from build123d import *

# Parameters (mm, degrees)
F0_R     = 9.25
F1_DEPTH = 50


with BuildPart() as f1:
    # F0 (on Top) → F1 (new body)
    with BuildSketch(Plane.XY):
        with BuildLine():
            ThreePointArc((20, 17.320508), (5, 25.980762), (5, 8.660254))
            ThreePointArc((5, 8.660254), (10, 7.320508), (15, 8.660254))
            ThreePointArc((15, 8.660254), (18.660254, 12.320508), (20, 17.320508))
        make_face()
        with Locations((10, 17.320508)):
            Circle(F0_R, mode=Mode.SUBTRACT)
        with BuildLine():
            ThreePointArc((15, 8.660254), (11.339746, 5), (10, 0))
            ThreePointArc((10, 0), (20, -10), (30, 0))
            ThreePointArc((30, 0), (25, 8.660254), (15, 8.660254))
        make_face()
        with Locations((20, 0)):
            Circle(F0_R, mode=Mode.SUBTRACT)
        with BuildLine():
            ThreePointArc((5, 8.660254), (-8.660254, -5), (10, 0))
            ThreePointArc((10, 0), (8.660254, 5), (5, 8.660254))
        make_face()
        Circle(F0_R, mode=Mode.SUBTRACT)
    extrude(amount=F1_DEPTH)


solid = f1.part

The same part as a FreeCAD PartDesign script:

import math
import FreeCAD as App
import Part
import Sketcher
from FreeCAD import Vector
Q = App.Units.Quantity

doc = App.newDocument("Part")
params = doc.addObject("Spreadsheet::Sheet", "Params")
for row, (alias, value) in enumerate([
    ("sketch1_radius", "10 mm"),
    ("sketch1_diameter", "18.5 mm"),
    ("pad1_length", "50 mm"),
], start=1):
    params.set(f"A{row}", alias)
    params.set(f"B{row}", "=" + value)
    params.setAlias(f"B{row}", alias)

body = doc.addObject("PartDesign::Body", "Body")
body.AllowCompound = True

# Sketch on XY plane
sketch1 = body.newObject("Sketcher::SketchObject", "Sketch")
sketch1.AttachmentSupport = (doc.getObject("XY_Plane"), [""])
sketch1.MapMode = "FlatFace"
sketch1.addGeometry([
    Part.ArcOfCircle(Part.Circle(Vector(10, 17, 0), Vector(0, 0, 1), 10), math.radians(0), math.radians(240)),  # 0
    Part.ArcOfCircle(Part.Circle(Vector(10, 17, 0), Vector(0, 0, 1), 10), math.radians(-120), math.radians(-60)),  # 1
    Part.ArcOfCircle(Part.Circle(Vector(10, 17, 0), Vector(0, 0, 1), 10), math.radians(-60), math.radians(0)),  # 2
    Part.Circle(Vector(10, 17, 0), Vector(0, 0, 1), 9),  # 3
    Part.ArcOfCircle(Part.Circle(Vector(20, 0, 0), Vector(0, 0, 1), 10), math.radians(120), math.radians(180)),  # 4
    Part.ArcOfCircle(Part.Circle(Vector(20, 0, 0), Vector(0, 0, 1), 10), math.radians(180), math.radians(360)),  # 5
    Part.ArcOfCircle(Part.Circle(Vector(20, 0, 0), Vector(0, 0, 1), 10), math.radians(0), math.radians(120)),  # 6
    Part.Circle(Vector(20, 0, 0), Vector(0, 0, 1), 9),  # 7
    Part.ArcOfCircle(Part.Circle(Vector(0, 0, 0), Vector(0, 0, 1), 10), math.radians(60), math.radians(360)),  # 8
    Part.ArcOfCircle(Part.Circle(Vector(0, 0, 0), Vector(0, 0, 1), 10), math.radians(0), math.radians(60)),  # 9
    Part.Circle(Vector(0, 0, 0), Vector(0, 0, 1), 9),  # 10
], False)
sketch1.addConstraint([
    Sketcher.Constraint("Tangent", 0, 2, 1, 1),
    Sketcher.Constraint("Tangent", 1, 2, 2, 1),
    Sketcher.Constraint("Tangent", 2, 2, 0, 1),
    Sketcher.Constraint("Tangent", 4, 2, 5, 1),
    Sketcher.Constraint("Tangent", 5, 2, 6, 1),
    Sketcher.Constraint("Tangent", 6, 2, 4, 1),
    Sketcher.Constraint("Tangent", 8, 1, 9, 2),
    Sketcher.Constraint("Coincident", 9, 1, 8, 2),
    Sketcher.Constraint("Coincident", 8, 3, -1, 1),
    Sketcher.Constraint("Coincident", 10, 3, -1, 1),
    Sketcher.Constraint("Coincident", 3, 3, 0, 3),
    Sketcher.Constraint("Coincident", 7, 3, 4, 3),
    Sketcher.Constraint("Coincident", 6, 2, 1, 2),
    Sketcher.Constraint("Coincident", 8, 1, 0, 2),
    Sketcher.Constraint("Coincident", 9, 1, 4, 2),
    Sketcher.Constraint("Equal", 2, 4),
    Sketcher.Constraint("Equal", 3, 7),
    Sketcher.Constraint("Equal", 6, 8),
    Sketcher.Constraint("Equal", 7, 10),
    Sketcher.Constraint("PointOnObject", 4, 3, -1),
    Sketcher.Constraint("PointOnObject", 4, 2, -1),
    Sketcher.Constraint("PointOnObject", 5, 2, -1),
    Sketcher.Constraint("Horizontal", 0, 2, 1, 2),
    Sketcher.Constraint("Horizontal", 3, 3, 2, 2),
    Sketcher.Constraint("Radius", 0, Q("10 mm")),
    Sketcher.Constraint("Diameter", 3, Q("18.5 mm")),
    Sketcher.Constraint("DistanceX", -1, 1, 0, 2, Q("5 mm")),
])
sketch1.setExpression("Constraints[24]", "Params.sketch1_radius")
sketch1.setExpression("Constraints[25]", "Params.sketch1_diameter")
pad1 = body.newObject("PartDesign::Pad", "Pad")
pad1.Profile = sketch1
pad1.setExpression("Length", "Params.pad1_length")

doc.recompute()
